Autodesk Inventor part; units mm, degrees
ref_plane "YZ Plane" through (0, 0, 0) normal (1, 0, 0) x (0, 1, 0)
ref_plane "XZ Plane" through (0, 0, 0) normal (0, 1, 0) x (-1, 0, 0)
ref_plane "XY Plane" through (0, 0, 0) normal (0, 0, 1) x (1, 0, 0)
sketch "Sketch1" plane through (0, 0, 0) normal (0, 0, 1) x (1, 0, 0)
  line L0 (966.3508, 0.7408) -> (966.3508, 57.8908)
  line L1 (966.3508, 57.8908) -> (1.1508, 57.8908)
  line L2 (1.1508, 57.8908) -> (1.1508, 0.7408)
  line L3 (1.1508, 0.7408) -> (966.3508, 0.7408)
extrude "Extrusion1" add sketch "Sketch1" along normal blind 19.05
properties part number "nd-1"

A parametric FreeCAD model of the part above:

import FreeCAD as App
import Part
import Sketcher
from FreeCAD import Vector
Q = App.Units.Quantity

doc = App.newDocument("Part")
params = doc.addObject("Spreadsheet::Sheet", "Params")
for row, (alias, value) in enumerate([
    ("sketch1_width", "38 in"),
    ("sketch1_height", "2.25 in"),
    ("pad1_length", "0.75 in"),
], start=1):
    params.set(f"A{row}", alias)
    params.set(f"B{row}", "=" + value)
    params.setAlias(f"B{row}", alias)

body = doc.addObject("PartDesign::Body", "Body")

# Sketch on XY plane
sketch1 = body.newObject("Sketcher::SketchObject", "Sketch")
sketch1.AttachmentSupport = (doc.getObject("XY_Plane"), [""])
sketch1.MapMode = "FlatFace"
sketch1.addGeometry(Part.LineSegment(Vector(1, 1, 0), Vector(966, 1, 0)), False)
sketch1.addGeometry(Part.LineSegment(Vector(966, 1, 0), Vector(966, 58, 0)), False)
sketch1.addGeometry(Part.LineSegment(Vector(966, 58, 0), Vector(1, 58, 0)), False)
sketch1.addGeometry(Part.LineSegment(Vector(1, 58, 0), Vector(1, 1, 0)), False)
sketch1.addConstraint(Sketcher.Constraint("Coincident", 0, 2, 1, 1))
sketch1.addConstraint(Sketcher.Constraint("Coincident", 1, 2, 2, 1))
sketch1.addConstraint(Sketcher.Constraint("Coincident", 2, 2, 3, 1))
sketch1.addConstraint(Sketcher.Constraint("Coincident", 3, 2, 0, 1))
sketch1.addConstraint(Sketcher.Constraint("Horizontal", 0))
sketch1.addConstraint(Sketcher.Constraint("Vertical", 1))
sketch1.addConstraint(Sketcher.Constraint("Horizontal", 2))
sketch1.addConstraint(Sketcher.Constraint("Vertical", 3))
sketch1.addConstraint(Sketcher.Constraint("DistanceX", 0, 1, 0, 2, Q("38 in")))
sketch1.addConstraint(Sketcher.Constraint("DistanceY", 1, 1, 1, 2, Q("2.25 in")))
sketch1.addConstraint(Sketcher.Constraint("DistanceX", -1, 1, 0, 2, Q("38.0453 in")))
sketch1.addConstraint(Sketcher.Constraint("DistanceY", -1, 1, 0, 2, Q("0.7408 mm")))
sketch1.setExpression("Constraints[8]", "Params.sketch1_width")
sketch1.setExpression("Constraints[9]", "Params.sketch1_height")
pad1 = body.newObject("PartDesign::Pad", "Pad")
pad1.Profile = sketch1
pad1.setExpression("Length", "Params.pad1_length")

doc.recompute()
